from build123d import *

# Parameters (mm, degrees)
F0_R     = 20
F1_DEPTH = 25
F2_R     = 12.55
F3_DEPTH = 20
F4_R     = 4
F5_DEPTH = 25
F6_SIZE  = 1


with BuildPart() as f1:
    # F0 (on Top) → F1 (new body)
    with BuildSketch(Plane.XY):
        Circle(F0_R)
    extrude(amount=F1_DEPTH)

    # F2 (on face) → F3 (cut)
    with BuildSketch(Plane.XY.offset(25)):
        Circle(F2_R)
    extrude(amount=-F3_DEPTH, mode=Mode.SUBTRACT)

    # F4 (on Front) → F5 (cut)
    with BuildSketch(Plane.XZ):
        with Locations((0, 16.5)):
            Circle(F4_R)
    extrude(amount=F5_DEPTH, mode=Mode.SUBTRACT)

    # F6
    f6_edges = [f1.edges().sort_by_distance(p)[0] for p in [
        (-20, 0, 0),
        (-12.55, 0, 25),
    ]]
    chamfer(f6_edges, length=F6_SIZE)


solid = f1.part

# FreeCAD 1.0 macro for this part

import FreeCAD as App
import Part
import Sketcher


def edges_at(feature, points):
    """Names of the edges that pass closest to the given points."""
    edges = feature.Shape.Edges
    near = lambda p: min(range(len(edges)), key=lambda i: edges[i].distToShape(Part.Vertex(*p))[0])
    return sorted({f"Edge{near(p) + 1}" for p in points})

doc = App.newDocument("Part")
body = doc.addObject("PartDesign::Body", "Body")

# Sketch on XY plane
sketch1 = body.newObject("Sketcher::SketchObject", "Sketch")
sketch1.AttachmentSupport = (doc.getObject("XY_Plane"), [""])
sketch1.MapMode = "FlatFace"
sketch1.addGeometry(Part.Circle(App.Vector(0, 0, 0), App.Vector(0, 0, 1), 20), False)
sketch1.addConstraint([
    Sketcher.Constraint("Coincident", 0, 3, -1, 1),
    Sketcher.Constraint("Diameter", 0, 40.0),
])
pad1 = body.newObject("PartDesign::Pad", "Pad")
pad1.Profile = sketch1
pad1.Length = 25

# Sketch on XY plane
sketch2 = body.newObject("Sketcher::SketchObject", "Sketch001")
sketch2.AttachmentSupport = (doc.getObject("XY_Plane"), [""])
sketch2.MapMode = "FlatFace"
sketch2.AttachmentOffset = App.Placement(App.Vector(0, 0, 25), App.Rotation())
sketch2.addGeometry(Part.Circle(App.Vector(0, 0, 0), App.Vector(0, 0, 1), 13), False)
sketch2.addConstraint([
    Sketcher.Constraint("Coincident", 0, 3, -1, 1),
    Sketcher.Constraint("Diameter", 0, 25.1),
])
pocket1 = body.newObject("PartDesign::Pocket", "Pocket")
pocket1.Profile = sketch2
pocket1.Length = 20

# Sketch on XZ plane
sketch3 = body.newObject("Sketcher::SketchObject", "Sketch002")
sketch3.AttachmentSupport = (doc.getObject("XZ_Plane"), [""])
sketch3.MapMode = "FlatFace"
sketch3.addGeometry(Part.Circle(App.Vector(0, 16.5, 0), App.Vector(0, 0, 1), 4), False)
sketch3.addConstraint([
    Sketcher.Constraint("PointOnObject", 0, 3, -2),
    Sketcher.Constraint("Diameter", 0, 8.0),
    Sketcher.Constraint("DistanceY", -1, 1, 0, 3, 16.5),
])
pocket2 = body.newObject("PartDesign::Pocket", "Pocket001")
pocket2.Profile = sketch3
pocket2.Length = 25
pocket2.Reversed = True
doc.recompute()

chamfer = body.newObject("PartDesign::Chamfer", "Chamfer")
chamfer.Base = (pocket2, edges_at(pocket2, [(-20, 0, 0), (-12.55, 0, 25)]))
chamfer.Size = 1

doc.recompute()
